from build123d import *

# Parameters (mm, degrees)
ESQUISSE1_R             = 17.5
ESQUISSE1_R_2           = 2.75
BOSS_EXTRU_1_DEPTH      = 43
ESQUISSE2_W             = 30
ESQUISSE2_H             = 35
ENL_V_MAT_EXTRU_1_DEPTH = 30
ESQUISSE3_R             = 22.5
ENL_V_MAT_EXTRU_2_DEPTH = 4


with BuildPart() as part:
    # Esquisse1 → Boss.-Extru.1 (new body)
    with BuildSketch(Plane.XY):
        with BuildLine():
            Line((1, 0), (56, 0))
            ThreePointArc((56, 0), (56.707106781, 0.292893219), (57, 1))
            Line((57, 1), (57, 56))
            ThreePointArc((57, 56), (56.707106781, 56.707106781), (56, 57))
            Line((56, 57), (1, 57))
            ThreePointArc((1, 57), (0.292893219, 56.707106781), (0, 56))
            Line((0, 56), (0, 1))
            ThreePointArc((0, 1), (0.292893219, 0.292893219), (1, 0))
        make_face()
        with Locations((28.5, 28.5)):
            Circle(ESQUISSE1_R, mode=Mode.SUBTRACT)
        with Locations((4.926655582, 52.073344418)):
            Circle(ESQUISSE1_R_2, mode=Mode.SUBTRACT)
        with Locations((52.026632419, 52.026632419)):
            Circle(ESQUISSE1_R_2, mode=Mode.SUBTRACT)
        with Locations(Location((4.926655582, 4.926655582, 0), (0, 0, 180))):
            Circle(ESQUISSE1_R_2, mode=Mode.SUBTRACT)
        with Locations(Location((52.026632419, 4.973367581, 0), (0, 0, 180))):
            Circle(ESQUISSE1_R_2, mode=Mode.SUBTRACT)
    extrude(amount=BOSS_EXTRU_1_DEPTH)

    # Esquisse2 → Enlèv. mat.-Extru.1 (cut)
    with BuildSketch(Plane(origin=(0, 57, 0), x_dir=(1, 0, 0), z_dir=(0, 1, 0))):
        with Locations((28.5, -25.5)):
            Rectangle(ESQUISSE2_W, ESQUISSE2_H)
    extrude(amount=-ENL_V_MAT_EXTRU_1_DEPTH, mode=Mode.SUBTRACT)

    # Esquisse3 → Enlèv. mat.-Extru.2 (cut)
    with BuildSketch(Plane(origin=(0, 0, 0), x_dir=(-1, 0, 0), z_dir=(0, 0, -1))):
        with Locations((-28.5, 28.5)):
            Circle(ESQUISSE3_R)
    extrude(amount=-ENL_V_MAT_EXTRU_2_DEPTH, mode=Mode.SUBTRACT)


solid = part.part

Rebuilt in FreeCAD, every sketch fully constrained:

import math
import FreeCAD as App
import Part
import Sketcher
Q = App.Units.Quantity

doc = App.newDocument("Part")
params = doc.addObject("Spreadsheet::Sheet", "Params")
for row, (alias, value) in enumerate([
    ("sketch1_diameter", "35 mm"),
    ("sketch1_radius", "1 mm"),
    ("sketch1_diameter2", "5.5 mm"),
    ("sketch1_width", "55 mm"),
    ("pad1_length", "43 mm"),
    ("sketch2_width", "30 mm"),
    ("sketch2_height", "35 mm"),
    ("pocket1_length", "30 mm"),
    ("sketch3_diameter", "45 mm"),
    ("pocket2_length", "4 mm"),
], start=1):
    params.set(f"A{row}", alias)
    params.set(f"B{row}", "=" + value)
    params.setAlias(f"B{row}", alias)

body = doc.addObject("PartDesign::Body", "Body")

# Sketch on XY plane
sketch1 = body.newObject("Sketcher::SketchObject", "Sketch")
sketch1.AttachmentSupport = (doc.getObject("XY_Plane"), [""])
sketch1.MapMode = "FlatFace"
sketch1.addGeometry([
    Part.LineSegment(App.Vector(1, 0, 0), App.Vector(56, 0, 0)),  # 0
    Part.ArcOfCircle(Part.Circle(App.Vector(56, 1, 0), App.Vector(0, 0, 1), 1), math.radians(-90), math.radians(0)),  # 1
    Part.LineSegment(App.Vector(57, 1, 0), App.Vector(57, 56, 0)),  # 2
    Part.ArcOfCircle(Part.Circle(App.Vector(56, 56, 0), App.Vector(0, 0, 1), 1), math.radians(0), math.radians(90)),  # 3
    Part.LineSegment(App.Vector(56, 57, 0), App.Vector(1, 57, 0)),  # 4
    Part.ArcOfCircle(Part.Circle(App.Vector(1, 56, 0), App.Vector(0, 0, 1), 1), math.radians(90), math.radians(180)),  # 5
    Part.LineSegment(App.Vector(0, 56, 0), App.Vector(0, 1, 0)),  # 6
    Part.ArcOfCircle(Part.Circle(App.Vector(1, 1, 0), App.Vector(0, 0, 1), 1), math.radians(-180), math.radians(-90)),  # 7
    Part.Circle(App.Vector(4.9, 4.9, 0), App.Vector(0, 0, 1), 2.8),  # 8
    Part.Circle(App.Vector(52, 5, 0), App.Vector(0, 0, 1), 2.8),  # 9
    Part.Circle(App.Vector(4.9, 52.1, 0), App.Vector(0, 0, 1), 2.8),  # 10
    Part.Circle(App.Vector(28.5, 28.5, 0), App.Vector(0, 0, 1), 17.5),  # 11
    Part.Circle(App.Vector(52, 52, 0), App.Vector(0, 0, 1), 2.8),  # 12
], False)
sketch1.addConstraint([
    Sketcher.Constraint("Tangent", 0, 2, 1, 1),
    Sketcher.Constraint("Tangent", 1, 2, 2, 1),
    Sketcher.Constraint("Tangent", 2, 2, 3, 1),
    Sketcher.Constraint("Tangent", 3, 2, 4, 1),
    Sketcher.Constraint("Tangent", 4, 2, 5, 1),
    Sketcher.Constraint("Tangent", 5, 2, 6, 1),
    Sketcher.Constraint("Tangent", 6, 2, 7, 1),
    Sketcher.Constraint("Tangent", 7, 2, 0, 1),
    Sketcher.Constraint("Horizontal", 0),
    Sketcher.Constraint("Vertical", 2),
    Sketcher.Constraint("Horizontal", 4),
    Sketcher.Constraint("Vertical", 6),
    Sketcher.Constraint("Equal", 1, 3),
    Sketcher.Constraint("Equal", 3, 5),
    Sketcher.Constraint("Equal", 5, 7),
    Sketcher.Constraint("Equal", 8, 9),
    Sketcher.Constraint("Equal", 9, 10),
    Sketcher.Constraint("Equal", 10, 12),
    Sketcher.Constraint("PointOnObject", 0, 2, -1),
    Sketcher.Constraint("PointOnObject", 5, 2, -2),
    Sketcher.Constraint("Vertical", 8, 3, 10, 3),
    Sketcher.Constraint("Vertical", 9, 3, 12, 3),
    Sketcher.Constraint("Equal", 4, 2),
    Sketcher.Constraint("Diameter", 11, Q("35 mm")),
    Sketcher.Constraint("Radius", 1, Q("1 mm")),
    Sketcher.Constraint("Diameter", 8, Q("5.5 mm")),
    Sketcher.Constraint("DistanceX", 0, 1, 0, 2, Q("55 mm")),
    Sketcher.Constraint("DistanceX", -1, 1, 11, 3, Q("28.5 mm")),
    Sketcher.Constraint("DistanceY", -1, 1, 11, 3, Q("28.5 mm")),
    Sketcher.Constraint("DistanceY", 8, 3, 9, 3, Q("0.046712 mm")),
    Sketcher.Constraint("DistanceY", 8, 3, 10, 3, Q("47.146689 mm")),
    Sketcher.Constraint("DistanceY", 12, 3, 10, 3, Q("0.046712 mm")),
    Sketcher.Constraint("DistanceX", -1, 1, 8, 3, Q("4.926656 mm")),
    Sketcher.Constraint("DistanceY", -1, 1, 8, 3, Q("4.926656 mm")),
    Sketcher.Constraint("DistanceX", -1, 1, 9, 3, Q("52.026632 mm")),
])
sketch1.setExpression("Constraints[23]", "Params.sketch1_diameter")
sketch1.setExpression("Constraints[24]", "Params.sketch1_radius")
sketch1.setExpression("Constraints[25]", "Params.sketch1_diameter2")
sketch1.setExpression("Constraints[26]", "Params.sketch1_width")
pad1 = body.newObject("PartDesign::Pad", "Pad")
pad1.Profile = sketch1
pad1.setExpression("Length", "Params.pad1_length")

# Sketch on XZ plane
sketch2 = body.newObject("Sketcher::SketchObject", "Sketch001")
sketch2.AttachmentSupport = (doc.getObject("XZ_Plane"), [""])
sketch2.MapMode = "FlatFace"
sketch2.AttachmentOffset = App.Placement(App.Vector(0, 0, -57), App.Rotation())
sketch2.addGeometry([
    Part.LineSegment(App.Vector(14, 8, 0), App.Vector(14, 43, 0)),
    Part.LineSegment(App.Vector(14, 43, 0), App.Vector(44, 43, 0)),
    Part.LineSegment(App.Vector(44, 43, 0), App.Vector(44, 8, 0)),
    Part.LineSegment(App.Vector(44, 8, 0), App.Vector(14, 8, 0)),
], False)
sketch2.addConstraint([
    Sketcher.Constraint("Coincident", 0, 2, 1, 1),
    Sketcher.Constraint("Coincident", 1, 2, 2, 1),
    Sketcher.Constraint("Coincident", 2, 2, 3, 1),
    Sketcher.Constraint("Coincident", 3, 2, 0, 1),
    Sketcher.Constraint("Vertical", 0),
    Sketcher.Constraint("Horizontal", 1),
    Sketcher.Constraint("Vertical", 2),
    Sketcher.Constraint("Horizontal", 3),
    Sketcher.Constraint("DistanceX", 1, 1, 1, 2, Q("30 mm")),
    Sketcher.Constraint("DistanceY", 0, 1, 0, 2, Q("35 mm")),
    Sketcher.Constraint("DistanceY", -1, 1, 0, 2, Q("43 mm")),
    Sketcher.Constraint("DistanceX", -1, 1, 0, 2, Q("13.5 mm")),
])
sketch2.setExpression("Constraints[8]", "Params.sketch2_width")
sketch2.setExpression("Constraints[9]", "Params.sketch2_height")
pocket1 = body.newObject("PartDesign::Pocket", "Pocket")
pocket1.Profile = sketch2
pocket1.setExpression("Length", "Params.pocket1_length")
pocket1.Reversed = True

# Sketch on XY plane
sketch3 = body.newObject("Sketcher::SketchObject", "Sketch002")
sketch3.AttachmentSupport = (doc.getObject("XY_Plane"), [""])
sketch3.MapMode = "FlatFace"
sketch3.addGeometry(Part.Circle(App.Vector(28, 28, 0), App.Vector(0, 0, 1), 22), False)
sketch3.addConstraint([
    Sketcher.Constraint("Diameter", 0, Q("45 mm")),
    Sketcher.Constraint("DistanceX", -1, 1, 0, 3, Q("28.5 mm")),
    Sketcher.Constraint("DistanceY", -1, 1, 0, 3, Q("28.5 mm")),
])
sketch3.setExpression("Constraints[0]", "Params.sketch3_diameter")
pocket2 = body.newObject("PartDesign::Pocket", "Pocket001")
pocket2.Profile = sketch3
pocket2.setExpression("Length", "Params.pocket2_length")
pocket2.Reversed = True

doc.recompute()
